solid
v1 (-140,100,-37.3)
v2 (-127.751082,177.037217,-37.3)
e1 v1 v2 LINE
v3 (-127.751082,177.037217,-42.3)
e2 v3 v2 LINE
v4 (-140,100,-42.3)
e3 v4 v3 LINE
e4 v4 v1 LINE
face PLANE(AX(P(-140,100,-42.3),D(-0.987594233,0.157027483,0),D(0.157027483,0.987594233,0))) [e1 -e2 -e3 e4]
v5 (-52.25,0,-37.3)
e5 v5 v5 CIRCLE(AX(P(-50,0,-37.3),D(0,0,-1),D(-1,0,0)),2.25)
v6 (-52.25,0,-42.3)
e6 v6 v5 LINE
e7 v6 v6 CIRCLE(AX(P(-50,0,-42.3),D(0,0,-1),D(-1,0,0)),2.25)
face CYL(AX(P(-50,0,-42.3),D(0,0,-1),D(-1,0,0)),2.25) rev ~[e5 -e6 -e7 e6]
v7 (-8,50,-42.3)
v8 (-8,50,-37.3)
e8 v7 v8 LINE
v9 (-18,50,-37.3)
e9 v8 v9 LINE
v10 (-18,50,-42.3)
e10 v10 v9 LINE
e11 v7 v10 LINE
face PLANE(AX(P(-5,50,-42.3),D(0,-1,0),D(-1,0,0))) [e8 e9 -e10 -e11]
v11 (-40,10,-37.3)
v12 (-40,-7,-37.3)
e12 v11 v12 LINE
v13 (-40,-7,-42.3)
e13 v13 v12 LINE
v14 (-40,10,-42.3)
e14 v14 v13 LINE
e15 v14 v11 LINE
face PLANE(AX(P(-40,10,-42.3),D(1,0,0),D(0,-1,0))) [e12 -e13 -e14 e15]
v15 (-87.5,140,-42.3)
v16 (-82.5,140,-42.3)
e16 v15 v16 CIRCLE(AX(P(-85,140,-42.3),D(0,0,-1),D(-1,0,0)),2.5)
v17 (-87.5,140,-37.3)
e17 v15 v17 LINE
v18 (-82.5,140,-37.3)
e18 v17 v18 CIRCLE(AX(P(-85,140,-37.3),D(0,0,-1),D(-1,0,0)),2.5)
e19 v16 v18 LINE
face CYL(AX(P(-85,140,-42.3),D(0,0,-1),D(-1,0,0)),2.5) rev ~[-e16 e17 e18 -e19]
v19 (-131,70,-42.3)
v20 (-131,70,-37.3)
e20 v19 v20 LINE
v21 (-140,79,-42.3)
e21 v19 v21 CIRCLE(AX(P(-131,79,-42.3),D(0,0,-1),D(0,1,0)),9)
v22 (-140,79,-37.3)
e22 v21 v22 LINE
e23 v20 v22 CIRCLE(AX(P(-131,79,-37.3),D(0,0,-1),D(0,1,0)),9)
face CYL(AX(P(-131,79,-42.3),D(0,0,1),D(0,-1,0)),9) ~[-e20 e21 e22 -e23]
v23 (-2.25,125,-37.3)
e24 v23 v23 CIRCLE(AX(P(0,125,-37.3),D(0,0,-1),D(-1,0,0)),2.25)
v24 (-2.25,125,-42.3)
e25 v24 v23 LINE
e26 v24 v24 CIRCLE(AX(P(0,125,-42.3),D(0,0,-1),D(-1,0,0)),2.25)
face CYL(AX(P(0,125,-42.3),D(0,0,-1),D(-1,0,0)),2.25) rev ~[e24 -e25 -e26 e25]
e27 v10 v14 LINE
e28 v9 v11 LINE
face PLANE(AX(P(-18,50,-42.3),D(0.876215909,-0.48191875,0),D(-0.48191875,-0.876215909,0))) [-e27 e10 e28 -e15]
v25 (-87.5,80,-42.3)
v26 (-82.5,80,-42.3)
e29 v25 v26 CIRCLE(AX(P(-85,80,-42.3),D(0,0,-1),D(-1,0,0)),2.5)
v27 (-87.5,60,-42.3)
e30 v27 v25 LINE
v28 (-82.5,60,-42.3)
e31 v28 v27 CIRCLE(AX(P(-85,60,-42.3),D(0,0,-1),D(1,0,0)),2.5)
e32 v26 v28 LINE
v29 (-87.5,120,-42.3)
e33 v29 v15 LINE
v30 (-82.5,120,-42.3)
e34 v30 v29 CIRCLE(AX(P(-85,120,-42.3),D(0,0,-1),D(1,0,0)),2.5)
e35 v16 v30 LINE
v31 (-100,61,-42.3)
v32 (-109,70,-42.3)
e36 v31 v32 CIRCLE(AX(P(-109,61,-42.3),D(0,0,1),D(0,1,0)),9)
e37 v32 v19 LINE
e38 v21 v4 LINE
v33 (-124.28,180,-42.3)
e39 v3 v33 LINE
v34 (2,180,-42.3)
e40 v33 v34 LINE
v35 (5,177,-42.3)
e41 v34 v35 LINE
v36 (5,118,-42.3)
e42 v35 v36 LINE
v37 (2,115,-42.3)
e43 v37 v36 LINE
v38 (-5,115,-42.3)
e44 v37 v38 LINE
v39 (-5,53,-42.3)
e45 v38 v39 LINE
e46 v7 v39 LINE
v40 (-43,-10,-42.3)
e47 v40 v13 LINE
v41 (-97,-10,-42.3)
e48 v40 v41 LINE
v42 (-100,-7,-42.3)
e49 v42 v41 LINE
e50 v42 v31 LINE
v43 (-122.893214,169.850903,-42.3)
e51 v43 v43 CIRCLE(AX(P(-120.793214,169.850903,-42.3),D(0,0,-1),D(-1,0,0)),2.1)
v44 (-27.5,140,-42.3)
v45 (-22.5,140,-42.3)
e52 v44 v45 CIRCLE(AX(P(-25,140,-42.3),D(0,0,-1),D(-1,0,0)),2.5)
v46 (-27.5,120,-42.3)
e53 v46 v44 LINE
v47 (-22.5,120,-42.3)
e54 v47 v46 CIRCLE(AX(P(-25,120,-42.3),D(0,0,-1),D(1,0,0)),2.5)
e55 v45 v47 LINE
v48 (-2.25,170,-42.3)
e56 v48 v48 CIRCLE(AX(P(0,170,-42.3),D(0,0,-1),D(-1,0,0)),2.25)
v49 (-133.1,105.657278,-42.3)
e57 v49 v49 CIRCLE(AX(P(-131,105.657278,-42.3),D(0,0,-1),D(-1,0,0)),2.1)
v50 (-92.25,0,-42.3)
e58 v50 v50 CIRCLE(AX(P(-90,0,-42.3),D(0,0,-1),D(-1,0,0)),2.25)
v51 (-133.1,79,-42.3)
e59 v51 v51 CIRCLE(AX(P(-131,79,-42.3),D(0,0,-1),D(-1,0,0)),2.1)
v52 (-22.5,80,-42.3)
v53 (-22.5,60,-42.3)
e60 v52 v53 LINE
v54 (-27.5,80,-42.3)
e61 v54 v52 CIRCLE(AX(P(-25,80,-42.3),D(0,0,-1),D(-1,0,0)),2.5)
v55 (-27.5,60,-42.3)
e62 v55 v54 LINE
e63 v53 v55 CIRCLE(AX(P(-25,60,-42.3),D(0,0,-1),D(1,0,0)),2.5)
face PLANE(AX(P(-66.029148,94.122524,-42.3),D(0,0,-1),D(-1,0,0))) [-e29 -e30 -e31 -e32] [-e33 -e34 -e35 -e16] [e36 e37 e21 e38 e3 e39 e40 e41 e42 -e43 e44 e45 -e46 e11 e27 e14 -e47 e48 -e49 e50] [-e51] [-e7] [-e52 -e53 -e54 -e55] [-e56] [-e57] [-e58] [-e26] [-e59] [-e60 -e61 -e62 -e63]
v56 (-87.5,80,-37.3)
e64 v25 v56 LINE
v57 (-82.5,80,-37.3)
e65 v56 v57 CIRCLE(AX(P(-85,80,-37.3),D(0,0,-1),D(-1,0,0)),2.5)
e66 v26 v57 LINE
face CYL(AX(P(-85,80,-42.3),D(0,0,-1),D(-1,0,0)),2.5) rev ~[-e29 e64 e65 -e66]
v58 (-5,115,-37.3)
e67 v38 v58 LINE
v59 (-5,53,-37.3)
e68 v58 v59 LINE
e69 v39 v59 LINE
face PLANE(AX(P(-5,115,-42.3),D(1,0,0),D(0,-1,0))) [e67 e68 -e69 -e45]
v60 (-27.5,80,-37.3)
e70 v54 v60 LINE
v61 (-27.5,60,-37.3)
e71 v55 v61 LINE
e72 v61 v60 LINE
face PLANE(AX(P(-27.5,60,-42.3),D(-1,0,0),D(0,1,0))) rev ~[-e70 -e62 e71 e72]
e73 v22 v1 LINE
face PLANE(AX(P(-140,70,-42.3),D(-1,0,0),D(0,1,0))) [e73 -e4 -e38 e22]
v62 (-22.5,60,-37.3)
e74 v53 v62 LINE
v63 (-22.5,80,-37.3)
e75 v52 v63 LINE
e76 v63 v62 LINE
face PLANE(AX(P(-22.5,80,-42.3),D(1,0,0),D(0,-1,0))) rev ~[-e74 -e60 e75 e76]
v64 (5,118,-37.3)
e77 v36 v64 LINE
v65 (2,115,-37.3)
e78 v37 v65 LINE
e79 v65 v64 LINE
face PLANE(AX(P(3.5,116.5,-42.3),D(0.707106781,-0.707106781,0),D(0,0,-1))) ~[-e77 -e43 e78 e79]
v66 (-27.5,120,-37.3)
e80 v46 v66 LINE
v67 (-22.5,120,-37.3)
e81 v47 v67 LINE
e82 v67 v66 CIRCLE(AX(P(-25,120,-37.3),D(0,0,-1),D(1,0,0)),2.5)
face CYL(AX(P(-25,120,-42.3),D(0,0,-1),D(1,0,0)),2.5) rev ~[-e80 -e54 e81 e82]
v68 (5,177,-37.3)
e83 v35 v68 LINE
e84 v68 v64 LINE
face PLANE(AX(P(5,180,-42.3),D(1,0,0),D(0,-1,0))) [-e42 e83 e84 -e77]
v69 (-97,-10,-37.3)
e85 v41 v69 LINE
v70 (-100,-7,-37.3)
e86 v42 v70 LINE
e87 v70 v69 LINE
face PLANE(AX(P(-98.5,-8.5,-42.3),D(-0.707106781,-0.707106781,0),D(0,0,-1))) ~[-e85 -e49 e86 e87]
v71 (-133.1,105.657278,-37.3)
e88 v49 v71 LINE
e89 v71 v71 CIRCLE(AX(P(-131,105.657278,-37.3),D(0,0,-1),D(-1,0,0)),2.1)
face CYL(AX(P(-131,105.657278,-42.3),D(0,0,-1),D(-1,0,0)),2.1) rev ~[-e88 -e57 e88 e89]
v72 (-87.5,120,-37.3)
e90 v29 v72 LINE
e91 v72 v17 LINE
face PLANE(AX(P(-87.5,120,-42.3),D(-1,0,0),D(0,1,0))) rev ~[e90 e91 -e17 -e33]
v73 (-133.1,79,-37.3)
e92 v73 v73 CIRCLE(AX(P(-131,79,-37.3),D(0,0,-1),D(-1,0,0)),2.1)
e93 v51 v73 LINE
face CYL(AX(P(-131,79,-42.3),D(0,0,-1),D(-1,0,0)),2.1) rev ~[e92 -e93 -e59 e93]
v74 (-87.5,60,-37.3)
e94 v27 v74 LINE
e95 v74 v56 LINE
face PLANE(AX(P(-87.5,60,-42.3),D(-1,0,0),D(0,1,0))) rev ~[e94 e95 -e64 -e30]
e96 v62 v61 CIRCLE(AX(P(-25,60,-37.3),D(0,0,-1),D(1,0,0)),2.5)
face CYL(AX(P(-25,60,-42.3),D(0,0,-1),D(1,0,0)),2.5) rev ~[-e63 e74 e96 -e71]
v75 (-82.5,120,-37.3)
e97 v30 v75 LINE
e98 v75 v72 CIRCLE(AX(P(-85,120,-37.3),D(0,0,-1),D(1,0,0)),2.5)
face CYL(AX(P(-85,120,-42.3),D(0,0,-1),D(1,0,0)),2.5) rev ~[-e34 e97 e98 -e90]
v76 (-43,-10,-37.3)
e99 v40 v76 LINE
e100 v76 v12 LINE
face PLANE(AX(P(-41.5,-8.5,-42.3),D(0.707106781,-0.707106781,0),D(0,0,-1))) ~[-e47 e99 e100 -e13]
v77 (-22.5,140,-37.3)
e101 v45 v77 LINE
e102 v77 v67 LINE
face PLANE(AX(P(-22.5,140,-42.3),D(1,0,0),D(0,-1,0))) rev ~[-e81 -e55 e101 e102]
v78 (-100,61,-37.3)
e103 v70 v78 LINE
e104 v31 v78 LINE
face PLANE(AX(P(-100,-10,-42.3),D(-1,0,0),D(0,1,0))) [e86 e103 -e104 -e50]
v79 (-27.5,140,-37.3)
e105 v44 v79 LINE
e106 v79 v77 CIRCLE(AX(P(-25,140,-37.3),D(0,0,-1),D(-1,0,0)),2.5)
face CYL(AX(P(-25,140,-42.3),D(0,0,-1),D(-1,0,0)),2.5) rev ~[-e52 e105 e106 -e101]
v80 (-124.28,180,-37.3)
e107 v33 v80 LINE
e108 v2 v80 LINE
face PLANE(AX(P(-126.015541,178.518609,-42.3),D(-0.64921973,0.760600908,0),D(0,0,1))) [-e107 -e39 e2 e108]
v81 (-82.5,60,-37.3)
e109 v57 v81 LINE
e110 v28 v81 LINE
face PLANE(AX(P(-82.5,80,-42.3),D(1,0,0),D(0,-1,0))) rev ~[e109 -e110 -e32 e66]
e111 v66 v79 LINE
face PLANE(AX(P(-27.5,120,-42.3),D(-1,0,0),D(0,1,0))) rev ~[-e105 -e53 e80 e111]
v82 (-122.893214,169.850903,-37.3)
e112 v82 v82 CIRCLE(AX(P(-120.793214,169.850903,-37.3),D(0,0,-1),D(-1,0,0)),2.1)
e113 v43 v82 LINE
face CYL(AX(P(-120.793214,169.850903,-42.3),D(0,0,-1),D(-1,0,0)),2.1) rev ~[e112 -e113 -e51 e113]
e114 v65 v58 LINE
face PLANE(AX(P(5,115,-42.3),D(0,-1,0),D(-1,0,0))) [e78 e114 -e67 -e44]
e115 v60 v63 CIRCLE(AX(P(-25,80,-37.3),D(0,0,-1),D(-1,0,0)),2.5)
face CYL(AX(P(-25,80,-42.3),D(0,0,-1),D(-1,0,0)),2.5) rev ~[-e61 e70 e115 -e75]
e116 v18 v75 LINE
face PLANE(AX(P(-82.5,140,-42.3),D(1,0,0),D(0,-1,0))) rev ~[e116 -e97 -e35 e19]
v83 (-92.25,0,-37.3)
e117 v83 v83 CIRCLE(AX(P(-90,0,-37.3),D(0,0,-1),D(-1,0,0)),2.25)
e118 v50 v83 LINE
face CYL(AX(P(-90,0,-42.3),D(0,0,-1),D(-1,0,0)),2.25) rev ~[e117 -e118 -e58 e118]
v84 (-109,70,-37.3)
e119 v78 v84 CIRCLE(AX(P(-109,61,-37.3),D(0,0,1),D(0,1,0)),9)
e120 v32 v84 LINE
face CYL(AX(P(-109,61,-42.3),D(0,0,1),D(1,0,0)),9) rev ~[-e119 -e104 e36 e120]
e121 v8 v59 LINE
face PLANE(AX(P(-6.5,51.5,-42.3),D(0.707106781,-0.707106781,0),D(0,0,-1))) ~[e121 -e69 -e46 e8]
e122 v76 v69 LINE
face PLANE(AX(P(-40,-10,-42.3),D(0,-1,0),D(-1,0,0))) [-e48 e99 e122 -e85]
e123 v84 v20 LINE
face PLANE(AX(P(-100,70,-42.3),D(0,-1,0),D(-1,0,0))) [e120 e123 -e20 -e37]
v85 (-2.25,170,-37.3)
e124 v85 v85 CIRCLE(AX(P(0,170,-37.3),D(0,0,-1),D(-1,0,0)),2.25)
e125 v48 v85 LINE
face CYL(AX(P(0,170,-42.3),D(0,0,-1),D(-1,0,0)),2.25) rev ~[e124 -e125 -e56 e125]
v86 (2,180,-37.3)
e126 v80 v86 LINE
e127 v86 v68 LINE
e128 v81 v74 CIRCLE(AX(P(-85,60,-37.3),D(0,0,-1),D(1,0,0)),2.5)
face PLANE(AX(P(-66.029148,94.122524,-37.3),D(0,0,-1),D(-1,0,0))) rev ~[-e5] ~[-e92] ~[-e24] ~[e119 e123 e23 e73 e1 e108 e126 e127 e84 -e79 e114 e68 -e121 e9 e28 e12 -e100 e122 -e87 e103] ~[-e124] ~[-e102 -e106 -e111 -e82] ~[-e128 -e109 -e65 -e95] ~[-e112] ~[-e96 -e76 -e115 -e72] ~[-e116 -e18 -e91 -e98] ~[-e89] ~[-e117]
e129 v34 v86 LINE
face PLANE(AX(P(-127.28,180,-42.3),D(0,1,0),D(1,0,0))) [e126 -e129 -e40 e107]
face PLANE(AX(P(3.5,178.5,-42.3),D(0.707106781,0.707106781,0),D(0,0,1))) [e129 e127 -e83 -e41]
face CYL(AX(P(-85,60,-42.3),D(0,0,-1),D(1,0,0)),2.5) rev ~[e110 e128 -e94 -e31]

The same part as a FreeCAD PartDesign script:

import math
import FreeCAD as App
import Part
import Sketcher
from FreeCAD import Vector
Q = App.Units.Quantity


def edges_at(feature, points):
    """Names of the edges that pass closest to the given points."""
    edges = feature.Shape.Edges
    near = lambda p: min(range(len(edges)), key=lambda i: edges[i].distToShape(Part.Vertex(*p))[0])
    return sorted({f"Edge{near(p) + 1}" for p in points})


def add_polygon(sketch, points):
    """Adds a closed chain of lines whose ends are joined by coincident constraints."""
    first, n = sketch.GeometryCount, len(points)
    for a, b in zip(points, points[1:] + points[:1]):
        sketch.addGeometry(Part.LineSegment(App.Vector(*a, 0), App.Vector(*b, 0)), False)
    for i in range(n):
        sketch.addConstraint(Sketcher.Constraint("Coincident", first + i, 2, first + (i + 1) % n, 1))

doc = App.newDocument("Part")
params = doc.addObject("Spreadsheet::Sheet", "Params")
for row, (alias, value) in enumerate([
    ("sketch1_diameter", "4.5 mm"),
    ("sketch1_width", "40 mm"),
    ("sketch1_width2", "10 mm"),
    ("sketch1_width3", "13 mm"),
    ("sketch1_width4", "60 mm"),
    ("pad1_length", "5 mm"),
    ("fillet_radius", "9 mm"),
    ("chamfer_size", "3 mm"),
    ("sketch2_diameter", "4.2 mm"),
    ("sketch2_radius", "2.5 mm"),
    ("sketch2_height", "20 mm"),
], start=1):
    params.set(f"A{row}", alias)
    params.set(f"B{row}", "=" + value)
    params.setAlias(f"B{row}", alias)

body = doc.addObject("PartDesign::Body", "Body")

sketch1 = body.newObject("Sketcher::SketchObject", "Sketch")
sketch1.AttachmentSupport = (doc.getObject("XY_Plane"), [""])
sketch1.MapMode = "FlatFace"
add_polygon(sketch1, [(100, -10), (100, 70), (140, 70), (140, 100), (127.3, 180), (-5, 180), (-5, 115), (5, 115), (5, 50), (18, 50), (40, 10), (40, -10)])
sketch1.addGeometry(Part.Circle(Vector(50, 0, 0), Vector(0, 0, 1), 2.2), False)
sketch1.addGeometry(Part.Circle(Vector(90, 0, 0), Vector(0, 0, 1), 2.2), False)
sketch1.addGeometry(Part.Circle(Vector(0, 125, 0), Vector(0, 0, 1), 2.2), False)
sketch1.addGeometry(Part.Circle(Vector(0, 170, 0), Vector(0, 0, 1), 2.2), False)
sketch1.addConstraint(Sketcher.Constraint("Vertical", 0))
sketch1.addConstraint(Sketcher.Constraint("Horizontal", 1))
sketch1.addConstraint(Sketcher.Constraint("Vertical", 2))
sketch1.addConstraint(Sketcher.Constraint("Horizontal", 4))
sketch1.addConstraint(Sketcher.Constraint("Vertical", 5))
sketch1.addConstraint(Sketcher.Constraint("Horizontal", 6))
sketch1.addConstraint(Sketcher.Constraint("Vertical", 7))
sketch1.addConstraint(Sketcher.Constraint("Horizontal", 8))
sketch1.addConstraint(Sketcher.Constraint("Vertical", 10))
sketch1.addConstraint(Sketcher.Constraint("Horizontal", 11))
sketch1.addConstraint(Sketcher.Constraint("Equal", 12, 13))
sketch1.addConstraint(Sketcher.Constraint("Equal", 13, 14))
sketch1.addConstraint(Sketcher.Constraint("Equal", 14, 15))
sketch1.addConstraint(Sketcher.Constraint("PointOnObject", 12, 3, -1))
sketch1.addConstraint(Sketcher.Constraint("PointOnObject", 13, 3, -1))
sketch1.addConstraint(Sketcher.Constraint("PointOnObject", 14, 3, -2))
sketch1.addConstraint(Sketcher.Constraint("PointOnObject", 15, 3, -2))
sketch1.addConstraint(Sketcher.Constraint("Equal", 5, 7))
sketch1.addConstraint(Sketcher.Constraint("Diameter", 12, Q("4.5 mm")))
sketch1.addConstraint(Sketcher.Constraint("DistanceX", 1, 1, 1, 2, Q("40 mm")))
sketch1.addConstraint(Sketcher.Constraint("DistanceX", 6, 1, 6, 2, Q("10 mm")))
sketch1.addConstraint(Sketcher.Constraint("DistanceX", 8, 1, 8, 2, Q("13 mm")))
sketch1.addConstraint(Sketcher.Constraint("DistanceX", 11, 1, 11, 2, Q("60 mm")))
sketch1.addConstraint(Sketcher.Constraint("DistanceY", 0, 1, 0, 2, Q("80 mm")))
sketch1.addConstraint(Sketcher.Constraint("DistanceY", 2, 1, 2, 2, Q("30 mm")))
sketch1.addConstraint(Sketcher.Constraint("DistanceY", 5, 2, 5, 1, Q("65 mm")))
sketch1.addConstraint(Sketcher.Constraint("DistanceY", 10, 2, 10, 1, Q("20 mm")))
sketch1.addConstraint(Sketcher.Constraint("DistanceX", -1, 1, 12, 3, Q("50 mm")))
sketch1.addConstraint(Sketcher.Constraint("DistanceX", -1, 1, 13, 3, Q("90 mm")))
sketch1.addConstraint(Sketcher.Constraint("DistanceY", -1, 1, 14, 3, Q("125 mm")))
sketch1.addConstraint(Sketcher.Constraint("DistanceY", -1, 1, 15, 3, Q("170 mm")))
sketch1.addConstraint(Sketcher.Constraint("DistanceX", -1, 1, 0, 2, Q("100 mm")))
sketch1.addConstraint(Sketcher.Constraint("DistanceY", -1, 1, 0, 2, Q("70 mm")))
sketch1.addConstraint(Sketcher.Constraint("DistanceY", -1, 1, 3, 2, Q("180 mm")))
sketch1.addConstraint(Sketcher.Constraint("DistanceX", 4, 2, -1, 1, Q("5 mm")))
sketch1.addConstraint(Sketcher.Constraint("DistanceX", 4, 2, 4, 1, Q("132.28 mm")))
sketch1.setExpression("Constraints[30]", "Params.sketch1_diameter")
sketch1.setExpression("Constraints[31]", "Params.sketch1_width")
sketch1.setExpression("Constraints[32]", "Params.sketch1_width2")
sketch1.setExpression("Constraints[33]", "Params.sketch1_width3")
sketch1.setExpression("Constraints[34]", "Params.sketch1_width4")
pad1 = body.newObject("PartDesign::Pad", "Pad")
pad1.Profile = sketch1
pad1.setExpression("Length", "Params.pad1_length")
pad1.Reversed = True
doc.recompute()

fillet = body.newObject("PartDesign::Fillet", "Fillet")
fillet.Base = (pad1, edges_at(pad1, [(100, 70, -2.5), (140, 70, -2.5)]))
fillet.setExpression("Radius", "Params.fillet_radius")
doc.recompute()

chamfer = body.newObject("PartDesign::Chamfer", "Chamfer")
chamfer.Base = (fillet, edges_at(fillet, [
    (-5, 115, -2.5),
    (5, 50, -2.5),
    (-5, 180, -2.5),
    (127.28, 180, -2.5),
    (100, -10, -2.5),
    (40, -10, -2.5),
]))
chamfer.setExpression("Size", "Params.chamfer_size")

sketch2 = body.newObject("Sketcher::SketchObject", "Sketch001")
sketch2.AttachmentSupport = (doc.getObject("XY_Plane"), [""])
sketch2.MapMode = "FlatFace"
sketch2.addGeometry(Part.Circle(Vector(120.8, 169.9, 0), Vector(0, 0, 1), 2.1), False)
sketch2.addGeometry(Part.Circle(Vector(131, 79, 0), Vector(0, 0, 1), 2.1), False)
sketch2.addGeometry(Part.Circle(Vector(131, 105.7, 0), Vector(0, 0, 1), 2.1), False)
sketch2.addGeometry(Part.ArcOfCircle(Part.Circle(Vector(25, 80, 0), Vector(0, 0, 1), 2.5), math.radians(0), math.radians(180)), False)
sketch2.addGeometry(Part.LineSegment(Vector(22.5, 80, 0), Vector(22.5, 60, 0)), False)
sketch2.addGeometry(Part.ArcOfCircle(Part.Circle(Vector(25, 60, 0), Vector(0, 0, 1), 2.5), math.radians(180), math.radians(360)), False)
sketch2.addGeometry(Part.LineSegment(Vector(27.5, 60, 0), Vector(27.5, 80, 0)), False)
sketch2.addGeometry(Part.ArcOfCircle(Part.Circle(Vector(85, 80, 0), Vector(0, 0, 1), 2.5), math.radians(0), math.radians(180)), False)
sketch2.addGeometry(Part.LineSegment(Vector(82.5, 80, 0), Vector(82.5, 60, 0)), False)
sketch2.addGeometry(Part.ArcOfCircle(Part.Circle(Vector(85, 60, 0), Vector(0, 0, 1), 2.5), math.radians(180), math.radians(360)), False)
sketch2.addGeometry(Part.LineSegment(Vector(87.5, 60, 0), Vector(87.5, 80, 0)), False)
sketch2.addGeometry(Part.ArcOfCircle(Part.Circle(Vector(25, 140, 0), Vector(0, 0, 1), 2.5), math.radians(0), math.radians(180)), False)
sketch2.addGeometry(Part.LineSegment(Vector(22.5, 140, 0), Vector(22.5, 120, 0)), False)
sketch2.addGeometry(Part.ArcOfCircle(Part.Circle(Vector(25, 120, 0), Vector(0, 0, 1), 2.5), math.radians(180), math.radians(360)), False)
sketch2.addGeometry(Part.LineSegment(Vector(27.5, 120, 0), Vector(27.5, 140, 0)), False)
sketch2.addGeometry(Part.ArcOfCircle(Part.Circle(Vector(85, 140, 0), Vector(0, 0, 1), 2.5), math.radians(0), math.radians(180)), False)
sketch2.addGeometry(Part.LineSegment(Vector(82.5, 140, 0), Vector(82.5, 120, 0)), False)
sketch2.addGeometry(Part.ArcOfCircle(Part.Circle(Vector(85, 120, 0), Vector(0, 0, 1), 2.5), math.radians(180), math.radians(360)), False)
sketch2.addGeometry(Part.LineSegment(Vector(87.5, 120, 0), Vector(87.5, 140, 0)), False)
sketch2.addConstraint(Sketcher.Constraint("Tangent", 3, 2, 4, 1))
sketch2.addConstraint(Sketcher.Constraint("Tangent", 4, 2, 5, 1))
sketch2.addConstraint(Sketcher.Constraint("Tangent", 5, 2, 6, 1))
sketch2.addConstraint(Sketcher.Constraint("Tangent", 6, 2, 3, 1))
sketch2.addConstraint(Sketcher.Constraint("Tangent", 7, 2, 8, 1))
sketch2.addConstraint(Sketcher.Constraint("Tangent", 8, 2, 9, 1))
sketch2.addConstraint(Sketcher.Constraint("Tangent", 9, 2, 10, 1))
sketch2.addConstraint(Sketcher.Constraint("Tangent", 10, 2, 7, 1))
sketch2.addConstraint(Sketcher.Constraint("Tangent", 11, 2, 12, 1))
sketch2.addConstraint(Sketcher.Constraint("Tangent", 12, 2, 13, 1))
sketch2.addConstraint(Sketcher.Constraint("Tangent", 13, 2, 14, 1))
sketch2.addConstraint(Sketcher.Constraint("Tangent", 14, 2, 11, 1))
sketch2.addConstraint(Sketcher.Constraint("Tangent", 15, 2, 16, 1))
sketch2.addConstraint(Sketcher.Constraint("Tangent", 16, 2, 17, 1))
sketch2.addConstraint(Sketcher.Constraint("Tangent", 17, 2, 18, 1))
sketch2.addConstraint(Sketcher.Constraint("Tangent", 18, 2, 15, 1))
sketch2.addConstraint(Sketcher.Constraint("Vertical", 4))
sketch2.addConstraint(Sketcher.Constraint("Vertical", 6))
sketch2.addConstraint(Sketcher.Constraint("Vertical", 8))
sketch2.addConstraint(Sketcher.Constraint("Vertical", 10))
sketch2.addConstraint(Sketcher.Constraint("Vertical", 12))
sketch2.addConstraint(Sketcher.Constraint("Vertical", 14))
sketch2.addConstraint(Sketcher.Constraint("Vertical", 16))
sketch2.addConstraint(Sketcher.Constraint("Vertical", 18))
sketch2.addConstraint(Sketcher.Constraint("Equal", 0, 1))
sketch2.addConstraint(Sketcher.Constraint("Equal", 1, 2))
sketch2.addConstraint(Sketcher.Constraint("Equal", 5, 7))
sketch2.addConstraint(Sketcher.Constraint("Equal", 9, 11))
sketch2.addConstraint(Sketcher.Constraint("Equal", 13, 15))
sketch2.addConstraint(Sketcher.Constraint("Horizontal", 3, 3, 7, 3))
sketch2.addConstraint(Sketcher.Constraint("Horizontal", 5, 3, 9, 3))
sketch2.addConstraint(Sketcher.Constraint("Horizontal", 11, 3, 15, 3))
sketch2.addConstraint(Sketcher.Constraint("Horizontal", 13, 3, 17, 3))
sketch2.addConstraint(Sketcher.Constraint("Vertical", 1, 3, 2, 3))
sketch2.addConstraint(Sketcher.Constraint("Vertical", 5, 3, 11, 3))
sketch2.addConstraint(Sketcher.Constraint("Vertical", 9, 3, 15, 3))
sketch2.addConstraint(Sketcher.Constraint("Equal", 10, 12))
sketch2.addConstraint(Sketcher.Constraint("Diameter", 0, Q("4.2 mm")))
sketch2.addConstraint(Sketcher.Constraint("Radius", 3, Q("2.5 mm")))
sketch2.addConstraint(Sketcher.Constraint("DistanceY", 4, 2, 4, 1, Q("20 mm")))
sketch2.addConstraint(Sketcher.Constraint("DistanceX", -1, 1, 1, 3, Q("131 mm")))
sketch2.addConstraint(Sketcher.Constraint("DistanceY", -1, 1, 1, 3, Q("79 mm")))
sketch2.addConstraint(Sketcher.Constraint("DistanceX", -1, 1, 3, 3, Q("25 mm")))
sketch2.addConstraint(Sketcher.Constraint("DistanceY", -1, 1, 3, 3, Q("80 mm")))
sketch2.addConstraint(Sketcher.Constraint("DistanceX", -1, 1, 7, 3, Q("85 mm")))
sketch2.addConstraint(Sketcher.Constraint("DistanceY", -1, 1, 11, 3, Q("140 mm")))
sketch2.addConstraint(Sketcher.Constraint("DistanceY", -1, 1, 2, 3, Q("105.657278 mm")))
sketch2.addConstraint(Sketcher.Constraint("DistanceX", -1, 1, 0, 3, Q("120.793214 mm")))
sketch2.addConstraint(Sketcher.Constraint("DistanceY", -1, 1, 0, 3, Q("169.850903 mm")))
sketch2.setExpression("Constraints[37]", "Params.sketch2_diameter")
sketch2.setExpression("Constraints[38]", "Params.sketch2_radius")
sketch2.setExpression("Constraints[39]", "Params.sketch2_height")
pocket1 = body.newObject("PartDesign::Pocket", "Pocket")
pocket1.Profile = sketch2
pocket1.Type = "ThroughAll"
body2 = doc.addObject("PartDesign::Body", "Body001")
doc.recompute()

body.Placement = App.Placement(Vector(0, 0, -42.3), App.Rotation(Vector(0, 1, 0), 180))
boolean = body2.newObject("PartDesign::Boolean", "Boolean")
boolean.Type = "Fuse"
boolean.addObjects([body])

doc.recompute()
